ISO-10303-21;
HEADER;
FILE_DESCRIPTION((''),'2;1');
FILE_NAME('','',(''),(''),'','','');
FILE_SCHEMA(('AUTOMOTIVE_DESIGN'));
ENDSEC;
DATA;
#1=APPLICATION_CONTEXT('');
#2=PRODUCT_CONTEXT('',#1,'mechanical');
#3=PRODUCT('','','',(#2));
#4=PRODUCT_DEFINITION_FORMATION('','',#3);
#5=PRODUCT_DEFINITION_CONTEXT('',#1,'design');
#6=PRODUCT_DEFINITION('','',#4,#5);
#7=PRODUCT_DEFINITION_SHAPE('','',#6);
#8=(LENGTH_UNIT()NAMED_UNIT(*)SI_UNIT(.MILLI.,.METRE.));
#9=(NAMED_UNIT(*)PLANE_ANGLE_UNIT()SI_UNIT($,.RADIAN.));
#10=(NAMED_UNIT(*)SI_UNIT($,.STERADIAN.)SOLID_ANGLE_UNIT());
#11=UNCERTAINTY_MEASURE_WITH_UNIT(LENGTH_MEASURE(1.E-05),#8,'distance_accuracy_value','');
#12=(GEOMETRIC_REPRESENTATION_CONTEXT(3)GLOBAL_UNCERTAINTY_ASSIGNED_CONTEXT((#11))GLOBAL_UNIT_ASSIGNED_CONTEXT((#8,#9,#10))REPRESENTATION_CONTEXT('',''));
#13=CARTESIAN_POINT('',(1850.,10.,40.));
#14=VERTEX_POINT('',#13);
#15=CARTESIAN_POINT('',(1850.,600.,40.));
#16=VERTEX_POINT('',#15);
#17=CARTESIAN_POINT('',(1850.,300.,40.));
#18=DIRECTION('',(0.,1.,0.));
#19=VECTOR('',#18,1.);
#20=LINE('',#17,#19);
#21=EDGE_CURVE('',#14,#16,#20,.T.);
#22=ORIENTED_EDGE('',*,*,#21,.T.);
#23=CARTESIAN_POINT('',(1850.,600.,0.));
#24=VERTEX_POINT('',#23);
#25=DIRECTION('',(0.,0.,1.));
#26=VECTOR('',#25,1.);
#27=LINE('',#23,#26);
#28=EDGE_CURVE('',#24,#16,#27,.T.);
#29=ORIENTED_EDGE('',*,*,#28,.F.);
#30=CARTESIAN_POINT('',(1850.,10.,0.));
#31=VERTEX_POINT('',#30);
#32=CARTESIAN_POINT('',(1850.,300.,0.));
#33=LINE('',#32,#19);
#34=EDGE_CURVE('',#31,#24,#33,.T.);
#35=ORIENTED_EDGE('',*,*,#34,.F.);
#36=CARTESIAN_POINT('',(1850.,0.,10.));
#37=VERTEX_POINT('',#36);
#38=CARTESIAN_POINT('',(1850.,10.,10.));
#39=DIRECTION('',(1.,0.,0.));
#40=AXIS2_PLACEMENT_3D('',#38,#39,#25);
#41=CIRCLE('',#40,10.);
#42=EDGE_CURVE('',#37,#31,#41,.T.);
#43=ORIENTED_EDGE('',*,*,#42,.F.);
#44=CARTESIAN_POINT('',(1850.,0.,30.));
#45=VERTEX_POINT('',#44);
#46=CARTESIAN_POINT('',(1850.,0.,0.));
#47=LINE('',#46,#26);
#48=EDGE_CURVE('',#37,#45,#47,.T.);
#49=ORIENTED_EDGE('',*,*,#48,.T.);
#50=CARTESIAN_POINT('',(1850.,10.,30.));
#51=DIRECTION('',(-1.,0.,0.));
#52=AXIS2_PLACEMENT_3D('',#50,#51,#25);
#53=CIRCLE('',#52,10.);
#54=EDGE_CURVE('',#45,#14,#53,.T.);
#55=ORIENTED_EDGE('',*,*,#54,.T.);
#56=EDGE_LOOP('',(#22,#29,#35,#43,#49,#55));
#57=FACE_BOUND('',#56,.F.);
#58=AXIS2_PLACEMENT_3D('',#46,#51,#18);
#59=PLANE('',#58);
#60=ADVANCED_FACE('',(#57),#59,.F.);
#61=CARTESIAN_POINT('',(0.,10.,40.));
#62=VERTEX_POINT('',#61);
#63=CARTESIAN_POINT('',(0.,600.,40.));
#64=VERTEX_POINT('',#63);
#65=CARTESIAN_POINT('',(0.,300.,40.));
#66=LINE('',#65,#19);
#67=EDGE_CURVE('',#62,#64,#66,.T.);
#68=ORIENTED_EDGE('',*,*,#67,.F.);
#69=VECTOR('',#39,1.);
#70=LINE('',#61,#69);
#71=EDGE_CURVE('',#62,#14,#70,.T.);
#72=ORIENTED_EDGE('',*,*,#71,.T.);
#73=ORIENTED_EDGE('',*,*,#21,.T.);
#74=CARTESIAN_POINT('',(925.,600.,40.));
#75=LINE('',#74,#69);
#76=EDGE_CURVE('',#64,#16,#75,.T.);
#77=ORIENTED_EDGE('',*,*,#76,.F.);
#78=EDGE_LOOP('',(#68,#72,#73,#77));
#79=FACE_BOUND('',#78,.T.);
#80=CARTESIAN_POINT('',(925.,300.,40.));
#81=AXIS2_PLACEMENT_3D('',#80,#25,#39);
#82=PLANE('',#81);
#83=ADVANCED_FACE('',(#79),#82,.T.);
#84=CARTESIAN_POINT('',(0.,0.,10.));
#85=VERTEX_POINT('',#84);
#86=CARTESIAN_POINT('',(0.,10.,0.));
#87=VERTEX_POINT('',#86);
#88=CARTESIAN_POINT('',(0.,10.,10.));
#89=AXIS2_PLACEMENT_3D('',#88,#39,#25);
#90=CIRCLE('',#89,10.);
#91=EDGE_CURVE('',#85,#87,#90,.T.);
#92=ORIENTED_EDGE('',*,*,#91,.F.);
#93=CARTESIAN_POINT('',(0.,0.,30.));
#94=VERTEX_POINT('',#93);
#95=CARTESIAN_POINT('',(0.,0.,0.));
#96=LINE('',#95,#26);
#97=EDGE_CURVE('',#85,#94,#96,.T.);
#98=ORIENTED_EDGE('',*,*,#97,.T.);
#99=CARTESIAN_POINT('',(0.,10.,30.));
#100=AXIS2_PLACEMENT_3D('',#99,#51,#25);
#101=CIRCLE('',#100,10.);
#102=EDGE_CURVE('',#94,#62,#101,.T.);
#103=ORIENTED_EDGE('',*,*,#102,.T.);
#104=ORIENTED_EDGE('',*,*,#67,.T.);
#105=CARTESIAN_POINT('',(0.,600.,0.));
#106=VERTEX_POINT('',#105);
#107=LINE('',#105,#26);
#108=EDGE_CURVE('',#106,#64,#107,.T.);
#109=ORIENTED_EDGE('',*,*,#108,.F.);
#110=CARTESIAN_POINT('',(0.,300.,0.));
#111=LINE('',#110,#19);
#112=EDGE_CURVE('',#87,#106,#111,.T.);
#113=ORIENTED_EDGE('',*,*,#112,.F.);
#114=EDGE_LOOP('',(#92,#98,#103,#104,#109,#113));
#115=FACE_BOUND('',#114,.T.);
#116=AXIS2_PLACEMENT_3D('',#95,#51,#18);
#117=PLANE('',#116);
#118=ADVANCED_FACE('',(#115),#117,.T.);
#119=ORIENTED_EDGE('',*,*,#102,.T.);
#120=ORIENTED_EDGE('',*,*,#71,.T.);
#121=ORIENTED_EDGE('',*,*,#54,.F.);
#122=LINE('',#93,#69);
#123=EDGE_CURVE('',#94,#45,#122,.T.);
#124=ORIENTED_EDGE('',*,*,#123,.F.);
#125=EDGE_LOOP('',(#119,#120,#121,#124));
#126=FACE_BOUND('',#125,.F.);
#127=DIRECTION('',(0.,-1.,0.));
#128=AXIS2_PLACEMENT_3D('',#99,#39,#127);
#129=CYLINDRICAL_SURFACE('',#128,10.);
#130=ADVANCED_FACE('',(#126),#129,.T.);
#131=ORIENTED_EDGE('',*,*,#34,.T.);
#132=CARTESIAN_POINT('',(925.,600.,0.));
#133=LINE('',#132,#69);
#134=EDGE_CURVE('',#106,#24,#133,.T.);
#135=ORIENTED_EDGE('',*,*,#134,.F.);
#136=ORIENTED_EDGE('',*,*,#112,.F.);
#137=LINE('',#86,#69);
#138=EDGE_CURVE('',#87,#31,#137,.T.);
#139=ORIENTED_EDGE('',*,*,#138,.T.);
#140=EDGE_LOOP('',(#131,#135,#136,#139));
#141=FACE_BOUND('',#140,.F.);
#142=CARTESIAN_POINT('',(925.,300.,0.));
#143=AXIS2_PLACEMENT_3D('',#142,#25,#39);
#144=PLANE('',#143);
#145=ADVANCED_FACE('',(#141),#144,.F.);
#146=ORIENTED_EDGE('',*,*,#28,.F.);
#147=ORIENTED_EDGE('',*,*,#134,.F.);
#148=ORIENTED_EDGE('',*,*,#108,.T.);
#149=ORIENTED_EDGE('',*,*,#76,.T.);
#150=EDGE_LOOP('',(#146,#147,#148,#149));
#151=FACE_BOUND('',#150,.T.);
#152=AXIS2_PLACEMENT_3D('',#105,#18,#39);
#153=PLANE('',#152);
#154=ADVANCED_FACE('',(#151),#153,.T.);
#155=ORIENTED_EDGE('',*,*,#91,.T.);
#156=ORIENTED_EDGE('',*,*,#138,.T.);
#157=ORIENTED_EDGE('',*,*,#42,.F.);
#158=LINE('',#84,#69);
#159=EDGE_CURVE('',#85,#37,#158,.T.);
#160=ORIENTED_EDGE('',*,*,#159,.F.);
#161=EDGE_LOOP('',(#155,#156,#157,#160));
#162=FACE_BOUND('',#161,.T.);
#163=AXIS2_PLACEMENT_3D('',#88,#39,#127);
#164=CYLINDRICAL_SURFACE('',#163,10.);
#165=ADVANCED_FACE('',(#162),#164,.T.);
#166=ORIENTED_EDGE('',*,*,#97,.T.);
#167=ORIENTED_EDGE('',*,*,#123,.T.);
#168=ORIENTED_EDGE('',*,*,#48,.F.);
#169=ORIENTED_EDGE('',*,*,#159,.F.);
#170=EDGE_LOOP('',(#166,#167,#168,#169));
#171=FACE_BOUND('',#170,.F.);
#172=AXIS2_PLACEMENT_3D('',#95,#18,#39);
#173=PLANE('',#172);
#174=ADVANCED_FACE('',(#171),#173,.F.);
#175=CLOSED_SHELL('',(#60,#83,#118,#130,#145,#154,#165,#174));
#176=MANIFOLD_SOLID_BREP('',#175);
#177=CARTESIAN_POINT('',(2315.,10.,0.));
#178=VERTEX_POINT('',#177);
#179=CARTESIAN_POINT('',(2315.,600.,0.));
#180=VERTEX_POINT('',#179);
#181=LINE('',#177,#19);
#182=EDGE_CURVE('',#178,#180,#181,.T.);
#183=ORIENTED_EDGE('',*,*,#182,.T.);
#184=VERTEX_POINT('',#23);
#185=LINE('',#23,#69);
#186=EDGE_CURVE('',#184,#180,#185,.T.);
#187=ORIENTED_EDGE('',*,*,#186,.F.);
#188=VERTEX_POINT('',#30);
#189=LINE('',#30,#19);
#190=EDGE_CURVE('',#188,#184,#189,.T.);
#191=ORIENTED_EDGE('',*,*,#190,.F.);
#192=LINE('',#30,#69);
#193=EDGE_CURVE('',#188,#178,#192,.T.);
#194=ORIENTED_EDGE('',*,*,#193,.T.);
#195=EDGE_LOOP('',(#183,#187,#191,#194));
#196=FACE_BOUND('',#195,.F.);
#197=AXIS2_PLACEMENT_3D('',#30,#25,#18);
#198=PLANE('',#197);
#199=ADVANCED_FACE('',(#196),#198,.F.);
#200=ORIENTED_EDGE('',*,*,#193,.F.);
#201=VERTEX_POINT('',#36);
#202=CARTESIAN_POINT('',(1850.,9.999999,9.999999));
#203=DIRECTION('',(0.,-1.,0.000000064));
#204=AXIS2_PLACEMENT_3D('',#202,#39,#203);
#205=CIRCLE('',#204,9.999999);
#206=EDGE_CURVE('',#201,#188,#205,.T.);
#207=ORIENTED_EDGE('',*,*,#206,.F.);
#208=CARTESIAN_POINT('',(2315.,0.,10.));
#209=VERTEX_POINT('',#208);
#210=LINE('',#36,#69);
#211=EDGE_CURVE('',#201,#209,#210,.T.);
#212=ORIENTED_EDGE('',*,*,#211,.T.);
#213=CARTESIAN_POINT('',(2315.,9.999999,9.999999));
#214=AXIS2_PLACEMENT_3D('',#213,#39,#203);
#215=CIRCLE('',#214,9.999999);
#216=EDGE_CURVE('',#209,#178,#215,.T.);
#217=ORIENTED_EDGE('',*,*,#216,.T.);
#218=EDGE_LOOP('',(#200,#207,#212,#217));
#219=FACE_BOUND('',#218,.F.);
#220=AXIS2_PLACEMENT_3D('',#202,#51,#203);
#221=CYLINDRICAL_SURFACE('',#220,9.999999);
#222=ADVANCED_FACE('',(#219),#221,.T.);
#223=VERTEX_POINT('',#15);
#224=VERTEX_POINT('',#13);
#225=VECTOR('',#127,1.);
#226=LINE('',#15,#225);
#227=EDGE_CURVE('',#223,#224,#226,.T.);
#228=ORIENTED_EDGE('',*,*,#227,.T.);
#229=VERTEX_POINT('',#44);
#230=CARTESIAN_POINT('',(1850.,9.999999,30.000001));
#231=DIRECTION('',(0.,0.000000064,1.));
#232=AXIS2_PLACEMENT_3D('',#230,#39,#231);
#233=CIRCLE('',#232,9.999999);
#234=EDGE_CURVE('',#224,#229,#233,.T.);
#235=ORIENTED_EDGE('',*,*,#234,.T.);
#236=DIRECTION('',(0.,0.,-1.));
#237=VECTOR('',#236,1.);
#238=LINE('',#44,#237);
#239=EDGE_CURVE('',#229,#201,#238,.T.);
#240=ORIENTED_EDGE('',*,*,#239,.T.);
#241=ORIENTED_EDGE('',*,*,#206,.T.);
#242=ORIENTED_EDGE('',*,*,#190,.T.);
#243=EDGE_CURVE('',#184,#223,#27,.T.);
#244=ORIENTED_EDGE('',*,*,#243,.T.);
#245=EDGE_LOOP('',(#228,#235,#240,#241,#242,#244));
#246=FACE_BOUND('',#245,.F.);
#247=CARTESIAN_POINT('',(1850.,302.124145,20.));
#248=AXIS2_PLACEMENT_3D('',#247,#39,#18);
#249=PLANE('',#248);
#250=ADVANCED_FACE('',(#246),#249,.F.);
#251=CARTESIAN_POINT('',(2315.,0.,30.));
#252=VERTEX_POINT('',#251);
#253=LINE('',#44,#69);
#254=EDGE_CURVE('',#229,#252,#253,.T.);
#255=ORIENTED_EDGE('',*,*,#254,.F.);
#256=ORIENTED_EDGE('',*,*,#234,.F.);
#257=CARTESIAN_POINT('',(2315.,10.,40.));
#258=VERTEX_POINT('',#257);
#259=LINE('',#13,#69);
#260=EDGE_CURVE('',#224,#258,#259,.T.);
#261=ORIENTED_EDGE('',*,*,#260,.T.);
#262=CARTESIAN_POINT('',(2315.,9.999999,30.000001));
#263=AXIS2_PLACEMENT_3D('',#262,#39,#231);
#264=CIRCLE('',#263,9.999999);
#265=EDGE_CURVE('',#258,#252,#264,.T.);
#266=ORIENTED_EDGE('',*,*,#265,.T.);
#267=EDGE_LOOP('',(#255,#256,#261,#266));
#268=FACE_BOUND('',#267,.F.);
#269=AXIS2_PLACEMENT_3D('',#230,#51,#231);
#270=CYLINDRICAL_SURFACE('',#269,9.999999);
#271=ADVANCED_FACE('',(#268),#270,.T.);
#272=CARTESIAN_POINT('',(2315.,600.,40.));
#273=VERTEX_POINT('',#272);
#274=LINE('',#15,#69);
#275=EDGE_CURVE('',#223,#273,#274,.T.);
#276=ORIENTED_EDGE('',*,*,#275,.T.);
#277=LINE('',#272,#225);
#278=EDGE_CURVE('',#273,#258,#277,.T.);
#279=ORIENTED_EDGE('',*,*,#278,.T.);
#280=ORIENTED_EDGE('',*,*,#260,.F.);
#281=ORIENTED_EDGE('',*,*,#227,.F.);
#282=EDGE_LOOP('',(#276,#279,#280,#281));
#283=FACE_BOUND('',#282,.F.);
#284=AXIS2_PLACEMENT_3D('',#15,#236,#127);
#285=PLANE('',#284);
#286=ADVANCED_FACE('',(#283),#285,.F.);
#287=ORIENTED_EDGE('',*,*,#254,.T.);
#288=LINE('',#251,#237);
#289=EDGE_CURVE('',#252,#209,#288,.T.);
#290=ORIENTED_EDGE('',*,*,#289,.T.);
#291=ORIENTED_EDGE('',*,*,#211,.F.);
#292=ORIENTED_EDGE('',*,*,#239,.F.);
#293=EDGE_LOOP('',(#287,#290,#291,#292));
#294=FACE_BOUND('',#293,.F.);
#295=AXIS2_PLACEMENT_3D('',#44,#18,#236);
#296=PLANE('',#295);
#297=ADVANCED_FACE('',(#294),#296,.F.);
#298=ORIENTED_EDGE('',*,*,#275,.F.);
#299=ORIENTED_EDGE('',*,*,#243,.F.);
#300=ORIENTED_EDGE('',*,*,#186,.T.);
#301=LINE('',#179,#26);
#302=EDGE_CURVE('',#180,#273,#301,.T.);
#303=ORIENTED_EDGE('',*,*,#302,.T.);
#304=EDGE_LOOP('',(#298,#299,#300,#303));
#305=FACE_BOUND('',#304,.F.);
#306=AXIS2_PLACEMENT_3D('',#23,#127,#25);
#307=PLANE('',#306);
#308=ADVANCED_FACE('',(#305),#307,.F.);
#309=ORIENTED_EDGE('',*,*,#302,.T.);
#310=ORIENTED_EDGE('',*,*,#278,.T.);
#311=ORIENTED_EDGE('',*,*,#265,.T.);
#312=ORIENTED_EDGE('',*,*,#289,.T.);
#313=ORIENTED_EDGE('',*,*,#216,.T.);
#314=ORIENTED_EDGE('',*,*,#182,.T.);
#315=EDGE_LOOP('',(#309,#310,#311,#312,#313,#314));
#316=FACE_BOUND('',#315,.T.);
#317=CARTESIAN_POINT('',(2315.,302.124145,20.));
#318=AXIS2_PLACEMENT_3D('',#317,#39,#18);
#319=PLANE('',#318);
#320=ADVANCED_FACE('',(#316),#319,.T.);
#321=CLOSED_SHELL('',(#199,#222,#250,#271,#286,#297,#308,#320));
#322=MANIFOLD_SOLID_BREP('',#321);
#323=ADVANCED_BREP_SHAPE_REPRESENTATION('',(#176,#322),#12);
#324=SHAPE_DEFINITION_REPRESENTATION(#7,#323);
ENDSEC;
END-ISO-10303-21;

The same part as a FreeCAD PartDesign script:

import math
import FreeCAD as App
import Part
import Sketcher

V = App.Vector


def edges_at(feature, points):
    """Names of the edges that pass closest to the given points."""
    edges = feature.Shape.Edges
    near = lambda p: min(range(len(edges)), key=lambda i: edges[i].distToShape(Part.Vertex(*p))[0])
    return sorted({f"Edge{near(p) + 1}" for p in points})

doc = App.newDocument("Part")
params = doc.addObject("Spreadsheet::Sheet", "Params")
for row, (alias, value) in enumerate([
    ("sketch1_width", "1850 mm"),
    ("sketch1_height", "600 mm"),
    ("pad1_length", "40 mm"),
    ("fillet_radius", "10 mm"),
    ("sketch2_radius", "9.999999 mm"),
    ("sketch2_width", "590 mm"),
    ("sketch2_height", "20 mm"),
    ("pad2_length", "465 mm"),
], start=1):
    params.set(f"A{row}", alias)
    params.set(f"B{row}", "=" + value)
    params.setAlias(f"B{row}", alias)

body = doc.addObject("PartDesign::Body", "Body")

# Sketch on XY plane
sketch1 = body.newObject("Sketcher::SketchObject", "Sketch")
sketch1.AttachmentSupport = (doc.getObject("XY_Plane"), [""])
sketch1.MapMode = "FlatFace"
sketch1.addGeometry([
    Part.LineSegment(V(0, 600, 0), V(0, 0, 0)),
    Part.LineSegment(V(0, 0, 0), V(1850, 0, 0)),
    Part.LineSegment(V(1850, 0, 0), V(1850, 600, 0)),
    Part.LineSegment(V(1850, 600, 0), V(0, 600, 0)),
], False)
sketch1.addConstraint([
    Sketcher.Constraint("Coincident", 0, 2, 1, 1),
    Sketcher.Constraint("Coincident", 1, 2, 2, 1),
    Sketcher.Constraint("Coincident", 2, 2, 3, 1),
    Sketcher.Constraint("Coincident", 3, 2, 0, 1),
    Sketcher.Constraint("Vertical", 0),
    Sketcher.Constraint("Horizontal", 1),
    Sketcher.Constraint("Vertical", 2),
    Sketcher.Constraint("Horizontal", 3),
    Sketcher.Constraint("Coincident", 0, 2, -1, 1),
    Sketcher.Constraint("DistanceX", 1, 1, 1, 2, 1850.0),
    Sketcher.Constraint("DistanceY", 0, 2, 0, 1, 600.0),
])
sketch1.setExpression("Constraints[9]", "Params.sketch1_width")
sketch1.setExpression("Constraints[10]", "Params.sketch1_height")
pad1 = body.newObject("PartDesign::Pad", "Pad")
pad1.Profile = sketch1
pad1.setExpression("Length", "Params.pad1_length")
doc.recompute()

fillet = body.newObject("PartDesign::Fillet", "Fillet")
fillet.Base = (pad1, edges_at(pad1, [(925, 0, 40), (925, 0, 0)]))
fillet.setExpression("Radius", "Params.fillet_radius")
body2 = doc.addObject("PartDesign::Body", "Body001")

# Sketch on YZ plane
sketch2 = body2.newObject("Sketcher::SketchObject", "Sketch001")
sketch2.AttachmentSupport = (doc.getObject("YZ_Plane001"), [""])
sketch2.MapMode = "FlatFace"
sketch2.AttachmentOffset = App.Placement(V(0, 0, 1850), App.Rotation())
sketch2.addGeometry([
    Part.LineSegment(V(0, 30, 0), V(0, 10, 0)),  # 0
    Part.ArcOfCircle(Part.Circle(V(10, 10, 0), V(0, 0, 1), 10), math.radians(180), math.radians(270)),  # 1
    Part.LineSegment(V(10, 0, 0), V(600, 0, 0)),  # 2
    Part.LineSegment(V(600, 0, 0), V(600, 40, 0)),  # 3
    Part.LineSegment(V(600, 40, 0), V(10, 40, 0)),  # 4
    Part.ArcOfCircle(Part.Circle(V(10, 30, 0), V(0, 0, 1), 10), math.radians(90), math.radians(180)),  # 5
], False)
sketch2.addConstraint([
    Sketcher.Constraint("Tangent", 0, 2, 1, 1),
    Sketcher.Constraint("Tangent", 1, 2, 2, 1),
    Sketcher.Constraint("Coincident", 2, 2, 3, 1),
    Sketcher.Constraint("Coincident", 3, 2, 4, 1),
    Sketcher.Constraint("Tangent", 4, 2, 5, 1),
    Sketcher.Constraint("Tangent", 5, 2, 0, 1),
    Sketcher.Constraint("Vertical", 0),
    Sketcher.Constraint("Horizontal", 2),
    Sketcher.Constraint("Vertical", 3),
    Sketcher.Constraint("Horizontal", 4),
    Sketcher.Constraint("Equal", 1, 5),
    Sketcher.Constraint("PointOnObject", 0, 2, -2),
    Sketcher.Constraint("PointOnObject", 1, 2, -1),
    Sketcher.Constraint("Radius", 1, 9.999999),
    Sketcher.Constraint("DistanceX", 2, 1, 2, 2, 590.0),
    Sketcher.Constraint("DistanceY", 0, 2, 0, 1, 20.0),
])
sketch2.setExpression("Constraints[13]", "Params.sketch2_radius")
sketch2.setExpression("Constraints[14]", "Params.sketch2_width")
sketch2.setExpression("Constraints[15]", "Params.sketch2_height")
pad2 = body2.newObject("PartDesign::Pad", "Pad001")
pad2.Profile = sketch2
pad2.setExpression("Length", "Params.pad2_length")

doc.recompute()
